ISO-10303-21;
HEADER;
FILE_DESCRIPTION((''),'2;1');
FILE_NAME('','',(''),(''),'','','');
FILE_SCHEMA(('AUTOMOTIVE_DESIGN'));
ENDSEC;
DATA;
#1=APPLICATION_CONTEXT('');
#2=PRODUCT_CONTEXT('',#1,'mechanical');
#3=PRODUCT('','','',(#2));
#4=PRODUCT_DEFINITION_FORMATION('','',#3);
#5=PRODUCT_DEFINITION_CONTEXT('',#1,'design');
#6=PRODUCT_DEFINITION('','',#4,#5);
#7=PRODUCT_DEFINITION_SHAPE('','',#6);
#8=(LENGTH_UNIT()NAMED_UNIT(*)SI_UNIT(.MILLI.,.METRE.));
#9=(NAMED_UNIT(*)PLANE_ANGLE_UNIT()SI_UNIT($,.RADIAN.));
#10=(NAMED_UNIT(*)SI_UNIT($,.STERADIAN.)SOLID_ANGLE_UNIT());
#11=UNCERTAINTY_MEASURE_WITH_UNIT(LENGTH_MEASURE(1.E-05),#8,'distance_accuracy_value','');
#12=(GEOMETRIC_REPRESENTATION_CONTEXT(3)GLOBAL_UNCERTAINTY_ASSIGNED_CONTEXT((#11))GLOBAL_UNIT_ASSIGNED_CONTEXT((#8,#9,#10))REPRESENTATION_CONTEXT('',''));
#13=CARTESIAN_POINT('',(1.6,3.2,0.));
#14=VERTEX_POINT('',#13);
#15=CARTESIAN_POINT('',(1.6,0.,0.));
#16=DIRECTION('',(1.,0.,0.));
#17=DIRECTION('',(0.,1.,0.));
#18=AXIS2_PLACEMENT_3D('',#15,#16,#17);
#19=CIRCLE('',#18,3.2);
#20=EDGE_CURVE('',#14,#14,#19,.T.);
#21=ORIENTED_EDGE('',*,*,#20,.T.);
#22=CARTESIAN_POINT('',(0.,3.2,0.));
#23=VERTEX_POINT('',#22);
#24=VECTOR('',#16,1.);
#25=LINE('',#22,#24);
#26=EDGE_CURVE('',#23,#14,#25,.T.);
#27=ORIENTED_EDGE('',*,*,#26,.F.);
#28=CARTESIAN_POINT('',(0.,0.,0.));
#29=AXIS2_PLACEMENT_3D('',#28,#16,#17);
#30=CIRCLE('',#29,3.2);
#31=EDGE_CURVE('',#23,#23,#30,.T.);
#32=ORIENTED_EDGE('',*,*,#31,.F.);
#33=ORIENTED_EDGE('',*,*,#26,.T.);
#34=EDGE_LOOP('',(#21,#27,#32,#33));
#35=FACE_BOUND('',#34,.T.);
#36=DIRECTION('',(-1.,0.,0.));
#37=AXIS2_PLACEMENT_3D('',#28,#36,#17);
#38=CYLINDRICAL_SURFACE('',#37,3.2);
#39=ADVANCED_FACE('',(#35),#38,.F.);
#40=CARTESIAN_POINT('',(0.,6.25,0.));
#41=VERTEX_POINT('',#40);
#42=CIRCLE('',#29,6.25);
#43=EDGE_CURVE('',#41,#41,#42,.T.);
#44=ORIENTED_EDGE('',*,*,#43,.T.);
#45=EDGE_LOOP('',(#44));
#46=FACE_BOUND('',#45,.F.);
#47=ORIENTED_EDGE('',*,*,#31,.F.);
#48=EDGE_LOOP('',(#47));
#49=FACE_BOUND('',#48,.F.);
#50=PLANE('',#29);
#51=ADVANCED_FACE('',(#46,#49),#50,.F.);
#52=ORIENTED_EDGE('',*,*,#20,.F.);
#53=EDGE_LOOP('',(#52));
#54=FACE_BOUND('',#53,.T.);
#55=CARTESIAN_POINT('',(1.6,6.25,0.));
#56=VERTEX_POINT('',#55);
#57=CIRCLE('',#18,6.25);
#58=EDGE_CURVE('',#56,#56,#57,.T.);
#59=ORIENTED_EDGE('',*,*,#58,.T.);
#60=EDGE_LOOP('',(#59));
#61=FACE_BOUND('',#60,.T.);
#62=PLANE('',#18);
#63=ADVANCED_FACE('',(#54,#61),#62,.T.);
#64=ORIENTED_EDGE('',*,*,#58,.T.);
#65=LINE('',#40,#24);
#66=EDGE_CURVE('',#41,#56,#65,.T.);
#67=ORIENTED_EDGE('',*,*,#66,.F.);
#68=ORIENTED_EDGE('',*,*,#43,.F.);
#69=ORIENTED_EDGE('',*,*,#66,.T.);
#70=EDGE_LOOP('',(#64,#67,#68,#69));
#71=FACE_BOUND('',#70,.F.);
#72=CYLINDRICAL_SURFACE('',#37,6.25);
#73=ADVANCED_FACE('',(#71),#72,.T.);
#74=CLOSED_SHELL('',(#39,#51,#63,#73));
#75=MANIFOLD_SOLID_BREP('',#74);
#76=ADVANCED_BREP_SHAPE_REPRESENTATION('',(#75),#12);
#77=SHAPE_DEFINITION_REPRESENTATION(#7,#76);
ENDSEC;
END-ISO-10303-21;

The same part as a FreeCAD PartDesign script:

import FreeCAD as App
import Part
import Sketcher

doc = App.newDocument("Part")
params = doc.addObject("Spreadsheet::Sheet", "Params")
for row, (alias, value) in enumerate([
    ("sketch1_diameter", "12.5 mm"),
    ("sketch1_diameter2", "6.4 mm"),
    ("pad1_length", "1.6 mm"),
], start=1):
    params.set(f"A{row}", alias)
    params.set(f"B{row}", "=" + value)
    params.setAlias(f"B{row}", alias)

body = doc.addObject("PartDesign::Body", "Body")

sketch1 = body.newObject("Sketcher::SketchObject", "Sketch")
sketch1.AttachmentSupport = (doc.getObject("YZ_Plane"), [""])
sketch1.MapMode = "FlatFace"
sketch1.addGeometry([
    Part.Circle(App.Vector(0, 0, 0), App.Vector(0, 0, 1), 6.25),
    Part.Circle(App.Vector(0, 0, 0), App.Vector(0, 0, 1), 3.2),
], False)
sketch1.addConstraint([
    Sketcher.Constraint("Coincident", 0, 3, -1, 1),
    Sketcher.Constraint("Coincident", 1, 3, -1, 1),
    Sketcher.Constraint("Diameter", 0, 12.5),
    Sketcher.Constraint("Diameter", 1, 6.4),
])
sketch1.setExpression("Constraints[2]", "Params.sketch1_diameter")
sketch1.setExpression("Constraints[3]", "Params.sketch1_diameter2")
pad1 = body.newObject("PartDesign::Pad", "Pad")
pad1.Profile = sketch1
pad1.setExpression("Length", "Params.pad1_length")

doc.recompute()
